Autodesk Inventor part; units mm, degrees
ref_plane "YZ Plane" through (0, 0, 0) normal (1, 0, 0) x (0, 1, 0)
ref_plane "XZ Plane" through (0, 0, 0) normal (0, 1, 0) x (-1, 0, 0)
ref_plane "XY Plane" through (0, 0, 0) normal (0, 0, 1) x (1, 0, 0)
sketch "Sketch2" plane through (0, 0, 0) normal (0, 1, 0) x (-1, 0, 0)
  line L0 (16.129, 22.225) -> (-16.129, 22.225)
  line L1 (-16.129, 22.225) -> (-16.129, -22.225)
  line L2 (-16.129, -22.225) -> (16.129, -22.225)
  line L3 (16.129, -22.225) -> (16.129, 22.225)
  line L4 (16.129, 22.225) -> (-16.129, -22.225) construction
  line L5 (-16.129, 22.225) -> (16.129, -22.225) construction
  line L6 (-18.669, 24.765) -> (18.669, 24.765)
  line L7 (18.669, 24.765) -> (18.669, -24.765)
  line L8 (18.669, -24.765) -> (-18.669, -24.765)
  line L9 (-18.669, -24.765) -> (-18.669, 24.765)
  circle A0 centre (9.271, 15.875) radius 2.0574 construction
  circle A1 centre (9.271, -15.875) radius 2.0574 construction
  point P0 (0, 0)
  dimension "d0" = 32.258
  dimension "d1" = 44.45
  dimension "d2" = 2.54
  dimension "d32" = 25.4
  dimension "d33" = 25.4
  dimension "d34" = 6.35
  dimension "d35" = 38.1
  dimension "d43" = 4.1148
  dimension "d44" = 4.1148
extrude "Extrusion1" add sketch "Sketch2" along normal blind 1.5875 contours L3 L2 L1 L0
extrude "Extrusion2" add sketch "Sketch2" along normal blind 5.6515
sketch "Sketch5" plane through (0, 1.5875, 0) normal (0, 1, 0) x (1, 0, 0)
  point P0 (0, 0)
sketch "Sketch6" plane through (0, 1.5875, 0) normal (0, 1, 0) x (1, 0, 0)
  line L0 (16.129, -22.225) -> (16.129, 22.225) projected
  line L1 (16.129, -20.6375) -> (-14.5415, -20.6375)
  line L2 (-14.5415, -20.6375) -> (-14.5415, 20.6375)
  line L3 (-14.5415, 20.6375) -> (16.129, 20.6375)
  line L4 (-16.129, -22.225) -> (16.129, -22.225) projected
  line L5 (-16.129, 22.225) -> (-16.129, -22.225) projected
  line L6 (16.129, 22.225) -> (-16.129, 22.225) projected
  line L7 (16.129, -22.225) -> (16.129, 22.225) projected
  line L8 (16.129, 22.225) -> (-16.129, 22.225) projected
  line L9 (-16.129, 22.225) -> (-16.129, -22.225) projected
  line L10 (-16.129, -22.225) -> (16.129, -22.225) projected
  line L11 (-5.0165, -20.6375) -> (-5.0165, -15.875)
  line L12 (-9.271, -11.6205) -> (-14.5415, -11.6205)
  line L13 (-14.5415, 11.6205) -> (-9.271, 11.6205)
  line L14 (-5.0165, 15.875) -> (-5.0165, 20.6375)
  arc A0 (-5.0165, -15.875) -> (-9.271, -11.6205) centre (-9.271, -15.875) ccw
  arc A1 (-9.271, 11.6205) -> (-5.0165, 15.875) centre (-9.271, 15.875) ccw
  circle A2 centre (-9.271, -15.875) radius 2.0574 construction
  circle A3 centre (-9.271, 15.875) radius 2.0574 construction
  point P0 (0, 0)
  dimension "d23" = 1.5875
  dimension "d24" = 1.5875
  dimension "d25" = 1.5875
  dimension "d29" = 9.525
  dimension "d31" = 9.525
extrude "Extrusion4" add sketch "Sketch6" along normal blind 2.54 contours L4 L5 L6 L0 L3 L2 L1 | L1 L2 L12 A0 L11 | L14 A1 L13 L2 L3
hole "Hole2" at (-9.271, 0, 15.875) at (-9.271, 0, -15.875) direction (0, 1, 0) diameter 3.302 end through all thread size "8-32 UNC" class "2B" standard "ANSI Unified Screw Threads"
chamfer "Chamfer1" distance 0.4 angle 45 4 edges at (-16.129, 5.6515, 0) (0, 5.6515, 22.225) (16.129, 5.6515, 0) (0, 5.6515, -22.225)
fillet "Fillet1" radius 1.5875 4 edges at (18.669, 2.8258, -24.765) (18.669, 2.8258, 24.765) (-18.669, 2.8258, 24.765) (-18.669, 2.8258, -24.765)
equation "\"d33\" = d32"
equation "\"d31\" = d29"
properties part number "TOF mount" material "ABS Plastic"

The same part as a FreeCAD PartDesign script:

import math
import FreeCAD as App
import Part
import Sketcher

V = App.Vector
Q = App.Units.Quantity


def edges_at(feature, points):
    """Names of the edges that pass closest to the given points."""
    edges = feature.Shape.Edges
    near = lambda p: min(range(len(edges)), key=lambda i: edges[i].distToShape(Part.Vertex(*p))[0])
    return sorted({f"Edge{near(p) + 1}" for p in points})


def add_polygon(sketch, points):
    """Adds a closed chain of lines whose ends are joined by coincident constraints."""
    first, n = sketch.GeometryCount, len(points)
    for a, b in zip(points, points[1:] + points[:1]):
        sketch.addGeometry(Part.LineSegment(App.Vector(*a, 0), App.Vector(*b, 0)), False)
    for i in range(n):
        sketch.addConstraint(Sketcher.Constraint("Coincident", first + i, 2, first + (i + 1) % n, 1))

doc = App.newDocument("Part")
body = doc.addObject("PartDesign::Body", "Body")

sketch1 = doc.addObject("Sketcher::SketchObject", "Sketch")
body.addObject(sketch1)
sketch1.AttachmentSupport = (doc.XZ_Plane, [""])
sketch1.MapMode = "FlatFace"
add_polygon(sketch1, [(-16, -22), (-16, 22), (16, 22), (16, -22)])
sketch1.addConstraint(Sketcher.Constraint("Vertical", 0))
sketch1.addConstraint(Sketcher.Constraint("Horizontal", 1))
sketch1.addConstraint(Sketcher.Constraint("Vertical", 2))
sketch1.addConstraint(Sketcher.Constraint("Horizontal", 3))
sketch1.addConstraint(Sketcher.Constraint("Symmetric", 0, 2, 2, 2, -1, 1))
sketch1.addConstraint(Sketcher.Constraint("DistanceX", 1, 1, 1, 2, Q("1.27 in")))
sketch1.addConstraint(Sketcher.Constraint("DistanceY", 0, 1, 0, 2, Q("1.75 in")))
pad1 = doc.addObject("PartDesign::Pad", "Pad")
body.addObject(pad1)
pad1.Profile = sketch1
pad1.Length = Q("0.0625 in")
pad1.Reversed = True

sketch2 = doc.addObject("Sketcher::SketchObject", "Sketch001")
body.addObject(sketch2)
sketch2.AttachmentSupport = (doc.XZ_Plane, [""])
sketch2.MapMode = "FlatFace"
add_polygon(sketch2, [(-19, 25), (19, 25), (19, -25), (-19, -25)])
add_polygon(sketch2, [(16, 22), (-16, 22), (-16, -22), (16, -22)])
sketch2.addConstraint(Sketcher.Constraint("Horizontal", 0))
sketch2.addConstraint(Sketcher.Constraint("Vertical", 1))
sketch2.addConstraint(Sketcher.Constraint("Horizontal", 2))
sketch2.addConstraint(Sketcher.Constraint("Vertical", 3))
sketch2.addConstraint(Sketcher.Constraint("Horizontal", 4))
sketch2.addConstraint(Sketcher.Constraint("Vertical", 5))
sketch2.addConstraint(Sketcher.Constraint("Horizontal", 6))
sketch2.addConstraint(Sketcher.Constraint("Vertical", 7))
sketch2.addConstraint(Sketcher.Constraint("Symmetric", 0, 2, 2, 2, -1, 1))
sketch2.addConstraint(Sketcher.Constraint("Symmetric", 4, 2, 6, 2, -1, 1))
sketch2.addConstraint(Sketcher.Constraint("DistanceX", 4, 2, 4, 1, Q("1.27 in")))
sketch2.addConstraint(Sketcher.Constraint("DistanceY", 5, 2, 5, 1, Q("1.75 in")))
sketch2.addConstraint(Sketcher.Constraint("DistanceX", 3, 2, 4, 2, Q("0.1 in")))
sketch2.addConstraint(Sketcher.Constraint("DistanceY", 4, 2, 3, 2, Q("0.1 in")))
pad2 = doc.addObject("PartDesign::Pad", "Pad001")
body.addObject(pad2)
pad2.Profile = sketch2
pad2.Length = Q("0.2225 in")
pad2.Reversed = True

sketch3 = doc.addObject("Sketcher::SketchObject", "Sketch002")
body.addObject(sketch3)
sketch3.AttachmentSupport = (doc.XZ_Plane, [""])
sketch3.MapMode = "FlatFace"
sketch3.AttachmentOffset = App.Placement(V(0, 0, -0.0625 * 25.4), App.Rotation())
sketch3.addGeometry(Part.LineSegment(V(-16.1, 22.2, 0), V(16.1, 22.2, 0)), False)
sketch3.addGeometry(Part.LineSegment(V(16.1, 22.2, 0), V(16.1, 20.6, 0)), False)
sketch3.addGeometry(Part.LineSegment(V(16.1, 20.6, 0), V(-5, 20.6, 0)), False)
sketch3.addGeometry(Part.LineSegment(V(-5, 20.6, 0), V(-5, 15.9, 0)), False)
sketch3.addGeometry(Part.ArcOfCircle(Part.Circle(V(-9.3, 15.9, 0), V(0, 0, 1), 4.3), math.radians(-90), math.radians(0)), False)
sketch3.addGeometry(Part.LineSegment(V(-9.3, 11.6, 0), V(-14.5, 11.6, 0)), False)
sketch3.addGeometry(Part.LineSegment(V(-14.5, 11.6, 0), V(-14.5, -11.6, 0)), False)
sketch3.addGeometry(Part.LineSegment(V(-14.5, -11.6, 0), V(-9.3, -11.6, 0)), False)
sketch3.addGeometry(Part.ArcOfCircle(Part.Circle(V(-9.3, -15.9, 0), V(0, 0, 1), 4.3), math.radians(0), math.radians(90)), False)
sketch3.addGeometry(Part.LineSegment(V(-5, -15.9, 0), V(-5, -20.6, 0)), False)
sketch3.addGeometry(Part.LineSegment(V(-5, -20.6, 0), V(16.1, -20.6, 0)), False)
sketch3.addGeometry(Part.LineSegment(V(16.1, -20.6, 0), V(16.1, -22.2, 0)), False)
sketch3.addGeometry(Part.LineSegment(V(16.1, -22.2, 0), V(-16.1, -22.2, 0)), False)
sketch3.addGeometry(Part.LineSegment(V(-16.1, -22.2, 0), V(-16.1, 22.2, 0)), False)
sketch3.addConstraint(Sketcher.Constraint("Coincident", 0, 2, 1, 1))
sketch3.addConstraint(Sketcher.Constraint("Coincident", 1, 2, 2, 1))
sketch3.addConstraint(Sketcher.Constraint("Coincident", 2, 2, 3, 1))
sketch3.addConstraint(Sketcher.Constraint("Tangent", 3, 2, 4, 2))
sketch3.addConstraint(Sketcher.Constraint("Tangent", 4, 1, 5, 1))
sketch3.addConstraint(Sketcher.Constraint("Coincident", 5, 2, 6, 1))
sketch3.addConstraint(Sketcher.Constraint("Coincident", 6, 2, 7, 1))
sketch3.addConstraint(Sketcher.Constraint("Tangent", 7, 2, 8, 2))
sketch3.addConstraint(Sketcher.Constraint("Tangent", 8, 1, 9, 1))
sketch3.addConstraint(Sketcher.Constraint("Coincident", 9, 2, 10, 1))
sketch3.addConstraint(Sketcher.Constraint("Coincident", 10, 2, 11, 1))
sketch3.addConstraint(Sketcher.Constraint("Coincident", 11, 2, 12, 1))
sketch3.addConstraint(Sketcher.Constraint("Coincident", 12, 2, 13, 1))
sketch3.addConstraint(Sketcher.Constraint("Coincident", 13, 2, 0, 1))
sketch3.addConstraint(Sketcher.Constraint("Horizontal", 0))
sketch3.addConstraint(Sketcher.Constraint("Vertical", 1))
sketch3.addConstraint(Sketcher.Constraint("Horizontal", 2))
sketch3.addConstraint(Sketcher.Constraint("Vertical", 3))
sketch3.addConstraint(Sketcher.Constraint("Horizontal", 5))
sketch3.addConstraint(Sketcher.Constraint("Vertical", 6))
sketch3.addConstraint(Sketcher.Constraint("Horizontal", 7))
sketch3.addConstraint(Sketcher.Constraint("Vertical", 9))
sketch3.addConstraint(Sketcher.Constraint("Horizontal", 10))
sketch3.addConstraint(Sketcher.Constraint("Vertical", 11))
sketch3.addConstraint(Sketcher.Constraint("Horizontal", 12))
sketch3.addConstraint(Sketcher.Constraint("Vertical", 13))
sketch3.addConstraint(Sketcher.Constraint("Equal", 4, 8))
sketch3.addConstraint(Sketcher.Constraint("Symmetric", 0, 2, 12, 2, -1, 1))
sketch3.addConstraint(Sketcher.Constraint("Symmetric", 4, 3, 8, 3, -1))
sketch3.addConstraint(Sketcher.Constraint("Symmetric", 1, 2, 10, 2, -1))
sketch3.addConstraint(Sketcher.Constraint("DistanceY", 1, 2, 1, 1, Q("0.0625 in")))
sketch3.addConstraint(Sketcher.Constraint("DistanceX", 4, 3, 0, 2, Q("1 in")))
sketch3.addConstraint(Sketcher.Constraint("DistanceX", 5, 2, 3, 2, Q("0.375 in")))
sketch3.addConstraint(Sketcher.Constraint("DistanceX", 12, 2, 6, 2, Q("0.0625 in")))
sketch3.addConstraint(Sketcher.Constraint("DistanceX", 0, 1, 0, 2, Q("1.27 in")))
sketch3.addConstraint(Sketcher.Constraint("DistanceY", 13, 1, 13, 2, Q("1.75 in")))
sketch3.addConstraint(Sketcher.Constraint("DistanceY", 8, 3, 0, 2, Q("1.5 in")))
pad3 = doc.addObject("PartDesign::Pad", "Pad002")
body.addObject(pad3)
pad3.Profile = sketch3
pad3.Length = Q("0.1 in")
pad3.Reversed = True

sketch4 = doc.addObject("Sketcher::SketchObject", "Sketch003")
body.addObject(sketch4)
sketch4.AttachmentSupport = (doc.XZ_Plane, [""])
sketch4.MapMode = "FlatFace"
sketch4.addGeometry(Part.Circle(V(-9.3, 15.9, 0), V(0, 0, 1), 1.7), False)
sketch4.addGeometry(Part.Circle(V(-9.3, -15.9, 0), V(0, 0, 1), 1.7), False)
sketch4.addConstraint(Sketcher.Constraint("Equal", 0, 1))
sketch4.addConstraint(Sketcher.Constraint("Symmetric", 0, 3, 1, 3, -1))
sketch4.addConstraint(Sketcher.Constraint("Diameter", 0, Q("0.13 in")))
sketch4.addConstraint(Sketcher.Constraint("DistanceY", 1, 3, 0, 3, Q("1.25 in")))
sketch4.addConstraint(Sketcher.Constraint("DistanceX", 0, 3, -1, 1, Q("0.365 in")))
doc.recompute()
hole = doc.addObject("PartDesign::Hole", "Hole")
body.addObject(hole)
hole.Profile = sketch4
hole.ThreadType = "None"
hole.Diameter = Q("0.13 in")
hole.DepthType = "ThroughAll"
doc.recompute()

chamfer = doc.addObject("PartDesign::Chamfer", "Chamfer")
body.addObject(chamfer)
chamfer.Base = (hole, edges_at(hole, [
    (-16.129, 5.652, 0),
    (0, 5.652, 22.225),
    (16.129, 5.652, 0),
    (0, 5.652, -22.225),
]))
chamfer.Size = 0.4
doc.recompute()

fillet = doc.addObject("PartDesign::Fillet", "Fillet")
body.addObject(fillet)
fillet.Base = (chamfer, edges_at(chamfer, [
    (18.669, 2.826, -24.765),
    (18.669, 2.826, 24.765),
    (-18.669, 2.826, 24.765),
    (-18.669, 2.826, -24.765),
]))
fillet.Radius = Q("0.0625 in")

doc.recompute()
